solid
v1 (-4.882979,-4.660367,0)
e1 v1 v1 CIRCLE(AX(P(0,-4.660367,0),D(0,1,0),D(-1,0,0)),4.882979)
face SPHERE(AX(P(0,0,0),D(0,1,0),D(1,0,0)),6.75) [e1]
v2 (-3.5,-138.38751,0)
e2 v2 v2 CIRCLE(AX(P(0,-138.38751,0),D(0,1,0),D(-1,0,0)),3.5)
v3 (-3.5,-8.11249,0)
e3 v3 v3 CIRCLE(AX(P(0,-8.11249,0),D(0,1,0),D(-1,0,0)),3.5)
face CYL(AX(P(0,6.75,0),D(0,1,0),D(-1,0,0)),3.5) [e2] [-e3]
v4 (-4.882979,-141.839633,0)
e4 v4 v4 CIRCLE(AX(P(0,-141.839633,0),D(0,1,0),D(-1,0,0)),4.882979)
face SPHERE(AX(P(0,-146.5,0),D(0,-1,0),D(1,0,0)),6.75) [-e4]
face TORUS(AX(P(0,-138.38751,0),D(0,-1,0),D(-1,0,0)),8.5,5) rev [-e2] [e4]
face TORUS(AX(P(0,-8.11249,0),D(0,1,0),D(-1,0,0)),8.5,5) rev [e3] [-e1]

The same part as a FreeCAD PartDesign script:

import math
import FreeCAD as App
import Part
import Sketcher

V = App.Vector
Q = App.Units.Quantity

doc = App.newDocument("Part")
body = doc.addObject("PartDesign::Body", "Body")

sketch1 = body.newObject("Sketcher::SketchObject", "Sketch")
sketch1.AttachmentSupport = (doc.getObject("XY_Plane"), [""])
sketch1.MapMode = "FlatFace"
sketch1.addGeometry([
    Part.LineSegment(V(0, 6.8, 0), V(0, -73.2, 0)),
    Part.LineSegment(V(0, -73.2, 0), V(3.5, -73.2, 0)),
    Part.LineSegment(V(3.5, -73.2, 0), V(3.5, -8.1, 0)),
    Part.ArcOfCircle(Part.Circle(V(8.5, -8.1, 0), V(0, 0, 1), 5), math.radians(136), math.radians(180)),
    Part.ArcOfCircle(Part.Circle(V(0, 0, 0), V(0, 0, 1), 6.8), math.radians(-44), math.radians(90)),
], False)
sketch1.addConstraint([
    Sketcher.Constraint("Coincident", 0, 2, 1, 1),
    Sketcher.Constraint("Coincident", 1, 2, 2, 1),
    Sketcher.Constraint("Tangent", 2, 2, 3, 2),
    Sketcher.Constraint("Tangent", 3, 1, 4, 1),
    Sketcher.Constraint("Coincident", 4, 2, 0, 1),
    Sketcher.Constraint("Vertical", 0),
    Sketcher.Constraint("Horizontal", 1),
    Sketcher.Constraint("Vertical", 2),
    Sketcher.Constraint("Coincident", 4, 3, -1, 1),
    Sketcher.Constraint("PointOnObject", 0, 2, -2),
    Sketcher.Constraint("Radius", 3, Q("5 mm")),
    Sketcher.Constraint("DistanceY", 0, 2, 0, 1, Q("80 mm")),
    Sketcher.Constraint("Radius", 4, Q("6.75 mm")),
    Sketcher.Constraint("DistanceX", 1, 1, 1, 2, Q("3.5 mm")),
])
revolution = body.newObject("PartDesign::Revolution", "Revolution")
revolution.Profile = sketch1
revolution.ReferenceAxis = (sketch1, ["V_Axis"])
revolution.Angle = 360
doc.recompute()

datumplane = body.newObject("PartDesign::Plane", "DatumPlane")
datumplane.AttachmentSupport = (doc.getObject("XZ_Plane"), [""])
datumplane.MapMode = "FlatFace"
datumplane.AttachmentOffset = App.Placement(V(0, 0, 73.25), App.Rotation())
mirrored = body.newObject("PartDesign::Mirrored", "Mirrored")
mirrored.Originals = [revolution]
mirrored.MirrorPlane = (datumplane, [""])
body.Tip = mirrored

doc.recompute()
